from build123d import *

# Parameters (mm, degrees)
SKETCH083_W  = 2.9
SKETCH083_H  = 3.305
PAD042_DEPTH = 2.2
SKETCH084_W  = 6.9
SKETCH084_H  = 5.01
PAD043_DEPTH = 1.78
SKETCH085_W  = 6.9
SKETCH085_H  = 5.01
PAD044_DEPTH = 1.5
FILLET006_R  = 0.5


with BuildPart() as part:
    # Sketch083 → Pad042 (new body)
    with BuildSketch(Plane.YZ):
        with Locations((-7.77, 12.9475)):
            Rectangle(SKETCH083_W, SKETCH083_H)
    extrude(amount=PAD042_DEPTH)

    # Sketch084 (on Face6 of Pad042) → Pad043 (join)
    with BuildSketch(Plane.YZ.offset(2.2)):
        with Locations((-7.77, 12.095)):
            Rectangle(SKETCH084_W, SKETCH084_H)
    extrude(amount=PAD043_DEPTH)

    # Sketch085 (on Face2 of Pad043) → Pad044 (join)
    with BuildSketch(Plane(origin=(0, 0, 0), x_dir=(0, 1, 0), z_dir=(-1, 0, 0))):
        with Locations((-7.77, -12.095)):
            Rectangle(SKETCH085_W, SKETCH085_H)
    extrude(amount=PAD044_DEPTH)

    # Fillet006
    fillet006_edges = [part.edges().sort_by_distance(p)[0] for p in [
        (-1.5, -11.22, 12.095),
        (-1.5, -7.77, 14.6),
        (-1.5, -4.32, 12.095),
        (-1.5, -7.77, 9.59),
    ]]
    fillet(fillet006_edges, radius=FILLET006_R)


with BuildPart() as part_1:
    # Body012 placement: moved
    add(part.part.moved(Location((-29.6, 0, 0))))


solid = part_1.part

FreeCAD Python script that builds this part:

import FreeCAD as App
import Part
import Sketcher
from FreeCAD import Vector


def edges_at(feature, points):
    """Names of the edges that pass closest to the given points."""
    edges = feature.Shape.Edges
    near = lambda p: min(range(len(edges)), key=lambda i: edges[i].distToShape(Part.Vertex(*p))[0])
    return sorted({f"Edge{near(p) + 1}" for p in points})


def add_polygon(sketch, points):
    """Adds a closed chain of lines whose ends are joined by coincident constraints."""
    first, n = sketch.GeometryCount, len(points)
    for a, b in zip(points, points[1:] + points[:1]):
        sketch.addGeometry(Part.LineSegment(App.Vector(*a, 0), App.Vector(*b, 0)), False)
    for i in range(n):
        sketch.addConstraint(Sketcher.Constraint("Coincident", first + i, 2, first + (i + 1) % n, 1))

doc = App.newDocument("Part")
body = doc.addObject("PartDesign::Body", "Body")

# Sketch on YZ plane
sketch1 = body.newObject("Sketcher::SketchObject", "Sketch")
sketch1.AttachmentSupport = (doc.getObject("YZ_Plane"), [""])
sketch1.MapMode = "FlatFace"
add_polygon(sketch1, [(-9.2, 14.6), (-9.2, 11.3), (-6.3, 11.3), (-6.3, 14.6)])  # lines 0-3
sketch1.addConstraint(Sketcher.Constraint("Vertical", 0))
sketch1.addConstraint(Sketcher.Constraint("Horizontal", 1))
sketch1.addConstraint(Sketcher.Constraint("Vertical", 2))
sketch1.addConstraint(Sketcher.Constraint("Horizontal", 3))
sketch1.addConstraint(Sketcher.Constraint("DistanceX", 1, 1, 1, 2, 2.9))
sketch1.addConstraint(Sketcher.Constraint("DistanceY", -1, 1, 2, 2, 14.6))
sketch1.addConstraint(Sketcher.Constraint("DistanceY", 0, 2, 0, 1, 3.305))
sketch1.addConstraint(Sketcher.Constraint("DistanceX", 0, 2, -1, 1, 9.22))
pad1 = body.newObject("PartDesign::Pad", "Pad")
pad1.Profile = sketch1
pad1.Length = 2.2

# Sketch on YZ plane
sketch2 = body.newObject("Sketcher::SketchObject", "Sketch001")
sketch2.AttachmentSupport = (doc.getObject("YZ_Plane"), [""])
sketch2.MapMode = "FlatFace"
sketch2.AttachmentOffset = App.Placement(Vector(0, 0, 2.2), App.Rotation())
add_polygon(sketch2, [(-11, 15), (-11, 10), (-4, 10), (-4, 15)])  # lines 0-3
sketch2.addConstraint(Sketcher.Constraint("Vertical", 0))
sketch2.addConstraint(Sketcher.Constraint("Horizontal", 1))
sketch2.addConstraint(Sketcher.Constraint("Vertical", 2))
sketch2.addConstraint(Sketcher.Constraint("Horizontal", 3))
sketch2.addConstraint(Sketcher.Constraint("DistanceX", 1, 1, 1, 2, 6.9))
sketch2.addConstraint(Sketcher.Constraint("DistanceY", 0, 2, 0, 1, 5.01))
sketch2.addConstraint(Sketcher.Constraint("DistanceY", -1, 1, 2, 2, 14.6))
sketch2.addConstraint(Sketcher.Constraint("DistanceX", 0, 2, -1, 1, 11.22))
pad2 = body.newObject("PartDesign::Pad", "Pad001")
pad2.Profile = sketch2
pad2.Length = 1.78

# Sketch on YZ plane
sketch3 = body.newObject("Sketcher::SketchObject", "Sketch002")
sketch3.AttachmentSupport = (doc.getObject("YZ_Plane"), [""])
sketch3.MapMode = "FlatFace"
add_polygon(sketch3, [(-11, 10), (-11, 15), (-4, 15), (-4, 10)])  # lines 0-3
sketch3.addConstraint(Sketcher.Constraint("Vertical", 0))
sketch3.addConstraint(Sketcher.Constraint("Horizontal", 1))
sketch3.addConstraint(Sketcher.Constraint("Vertical", 2))
sketch3.addConstraint(Sketcher.Constraint("Horizontal", 3))
sketch3.addConstraint(Sketcher.Constraint("DistanceX", 1, 1, 1, 2, 6.9))
sketch3.addConstraint(Sketcher.Constraint("DistanceY", 0, 1, 0, 2, 5.01))
sketch3.addConstraint(Sketcher.Constraint("DistanceY", -1, 1, 0, 2, 14.6))
sketch3.addConstraint(Sketcher.Constraint("DistanceX", 0, 2, -1, 1, 11.22))
pad3 = body.newObject("PartDesign::Pad", "Pad002")
pad3.Profile = sketch3
pad3.Length = 1.5
pad3.Reversed = True
doc.recompute()

fillet = body.newObject("PartDesign::Fillet", "Fillet")
fillet.Base = (pad3, edges_at(pad3, [
    (-1.5, -11.22, 12.095),
    (-1.5, -7.77, 14.6),
    (-1.5, -4.32, 12.095),
    (-1.5, -7.77, 9.59),
]))
fillet.Radius = 0.5
body2 = doc.addObject("PartDesign::Body", "Body001")
doc.recompute()

body.Placement = App.Placement(Vector(-29.6, 0, 0), App.Rotation(Vector(0, 0, 1), 0))
boolean = body2.newObject("PartDesign::Boolean", "Boolean")
boolean.Type = "Fuse"
boolean.addObjects([body])

doc.recompute()
